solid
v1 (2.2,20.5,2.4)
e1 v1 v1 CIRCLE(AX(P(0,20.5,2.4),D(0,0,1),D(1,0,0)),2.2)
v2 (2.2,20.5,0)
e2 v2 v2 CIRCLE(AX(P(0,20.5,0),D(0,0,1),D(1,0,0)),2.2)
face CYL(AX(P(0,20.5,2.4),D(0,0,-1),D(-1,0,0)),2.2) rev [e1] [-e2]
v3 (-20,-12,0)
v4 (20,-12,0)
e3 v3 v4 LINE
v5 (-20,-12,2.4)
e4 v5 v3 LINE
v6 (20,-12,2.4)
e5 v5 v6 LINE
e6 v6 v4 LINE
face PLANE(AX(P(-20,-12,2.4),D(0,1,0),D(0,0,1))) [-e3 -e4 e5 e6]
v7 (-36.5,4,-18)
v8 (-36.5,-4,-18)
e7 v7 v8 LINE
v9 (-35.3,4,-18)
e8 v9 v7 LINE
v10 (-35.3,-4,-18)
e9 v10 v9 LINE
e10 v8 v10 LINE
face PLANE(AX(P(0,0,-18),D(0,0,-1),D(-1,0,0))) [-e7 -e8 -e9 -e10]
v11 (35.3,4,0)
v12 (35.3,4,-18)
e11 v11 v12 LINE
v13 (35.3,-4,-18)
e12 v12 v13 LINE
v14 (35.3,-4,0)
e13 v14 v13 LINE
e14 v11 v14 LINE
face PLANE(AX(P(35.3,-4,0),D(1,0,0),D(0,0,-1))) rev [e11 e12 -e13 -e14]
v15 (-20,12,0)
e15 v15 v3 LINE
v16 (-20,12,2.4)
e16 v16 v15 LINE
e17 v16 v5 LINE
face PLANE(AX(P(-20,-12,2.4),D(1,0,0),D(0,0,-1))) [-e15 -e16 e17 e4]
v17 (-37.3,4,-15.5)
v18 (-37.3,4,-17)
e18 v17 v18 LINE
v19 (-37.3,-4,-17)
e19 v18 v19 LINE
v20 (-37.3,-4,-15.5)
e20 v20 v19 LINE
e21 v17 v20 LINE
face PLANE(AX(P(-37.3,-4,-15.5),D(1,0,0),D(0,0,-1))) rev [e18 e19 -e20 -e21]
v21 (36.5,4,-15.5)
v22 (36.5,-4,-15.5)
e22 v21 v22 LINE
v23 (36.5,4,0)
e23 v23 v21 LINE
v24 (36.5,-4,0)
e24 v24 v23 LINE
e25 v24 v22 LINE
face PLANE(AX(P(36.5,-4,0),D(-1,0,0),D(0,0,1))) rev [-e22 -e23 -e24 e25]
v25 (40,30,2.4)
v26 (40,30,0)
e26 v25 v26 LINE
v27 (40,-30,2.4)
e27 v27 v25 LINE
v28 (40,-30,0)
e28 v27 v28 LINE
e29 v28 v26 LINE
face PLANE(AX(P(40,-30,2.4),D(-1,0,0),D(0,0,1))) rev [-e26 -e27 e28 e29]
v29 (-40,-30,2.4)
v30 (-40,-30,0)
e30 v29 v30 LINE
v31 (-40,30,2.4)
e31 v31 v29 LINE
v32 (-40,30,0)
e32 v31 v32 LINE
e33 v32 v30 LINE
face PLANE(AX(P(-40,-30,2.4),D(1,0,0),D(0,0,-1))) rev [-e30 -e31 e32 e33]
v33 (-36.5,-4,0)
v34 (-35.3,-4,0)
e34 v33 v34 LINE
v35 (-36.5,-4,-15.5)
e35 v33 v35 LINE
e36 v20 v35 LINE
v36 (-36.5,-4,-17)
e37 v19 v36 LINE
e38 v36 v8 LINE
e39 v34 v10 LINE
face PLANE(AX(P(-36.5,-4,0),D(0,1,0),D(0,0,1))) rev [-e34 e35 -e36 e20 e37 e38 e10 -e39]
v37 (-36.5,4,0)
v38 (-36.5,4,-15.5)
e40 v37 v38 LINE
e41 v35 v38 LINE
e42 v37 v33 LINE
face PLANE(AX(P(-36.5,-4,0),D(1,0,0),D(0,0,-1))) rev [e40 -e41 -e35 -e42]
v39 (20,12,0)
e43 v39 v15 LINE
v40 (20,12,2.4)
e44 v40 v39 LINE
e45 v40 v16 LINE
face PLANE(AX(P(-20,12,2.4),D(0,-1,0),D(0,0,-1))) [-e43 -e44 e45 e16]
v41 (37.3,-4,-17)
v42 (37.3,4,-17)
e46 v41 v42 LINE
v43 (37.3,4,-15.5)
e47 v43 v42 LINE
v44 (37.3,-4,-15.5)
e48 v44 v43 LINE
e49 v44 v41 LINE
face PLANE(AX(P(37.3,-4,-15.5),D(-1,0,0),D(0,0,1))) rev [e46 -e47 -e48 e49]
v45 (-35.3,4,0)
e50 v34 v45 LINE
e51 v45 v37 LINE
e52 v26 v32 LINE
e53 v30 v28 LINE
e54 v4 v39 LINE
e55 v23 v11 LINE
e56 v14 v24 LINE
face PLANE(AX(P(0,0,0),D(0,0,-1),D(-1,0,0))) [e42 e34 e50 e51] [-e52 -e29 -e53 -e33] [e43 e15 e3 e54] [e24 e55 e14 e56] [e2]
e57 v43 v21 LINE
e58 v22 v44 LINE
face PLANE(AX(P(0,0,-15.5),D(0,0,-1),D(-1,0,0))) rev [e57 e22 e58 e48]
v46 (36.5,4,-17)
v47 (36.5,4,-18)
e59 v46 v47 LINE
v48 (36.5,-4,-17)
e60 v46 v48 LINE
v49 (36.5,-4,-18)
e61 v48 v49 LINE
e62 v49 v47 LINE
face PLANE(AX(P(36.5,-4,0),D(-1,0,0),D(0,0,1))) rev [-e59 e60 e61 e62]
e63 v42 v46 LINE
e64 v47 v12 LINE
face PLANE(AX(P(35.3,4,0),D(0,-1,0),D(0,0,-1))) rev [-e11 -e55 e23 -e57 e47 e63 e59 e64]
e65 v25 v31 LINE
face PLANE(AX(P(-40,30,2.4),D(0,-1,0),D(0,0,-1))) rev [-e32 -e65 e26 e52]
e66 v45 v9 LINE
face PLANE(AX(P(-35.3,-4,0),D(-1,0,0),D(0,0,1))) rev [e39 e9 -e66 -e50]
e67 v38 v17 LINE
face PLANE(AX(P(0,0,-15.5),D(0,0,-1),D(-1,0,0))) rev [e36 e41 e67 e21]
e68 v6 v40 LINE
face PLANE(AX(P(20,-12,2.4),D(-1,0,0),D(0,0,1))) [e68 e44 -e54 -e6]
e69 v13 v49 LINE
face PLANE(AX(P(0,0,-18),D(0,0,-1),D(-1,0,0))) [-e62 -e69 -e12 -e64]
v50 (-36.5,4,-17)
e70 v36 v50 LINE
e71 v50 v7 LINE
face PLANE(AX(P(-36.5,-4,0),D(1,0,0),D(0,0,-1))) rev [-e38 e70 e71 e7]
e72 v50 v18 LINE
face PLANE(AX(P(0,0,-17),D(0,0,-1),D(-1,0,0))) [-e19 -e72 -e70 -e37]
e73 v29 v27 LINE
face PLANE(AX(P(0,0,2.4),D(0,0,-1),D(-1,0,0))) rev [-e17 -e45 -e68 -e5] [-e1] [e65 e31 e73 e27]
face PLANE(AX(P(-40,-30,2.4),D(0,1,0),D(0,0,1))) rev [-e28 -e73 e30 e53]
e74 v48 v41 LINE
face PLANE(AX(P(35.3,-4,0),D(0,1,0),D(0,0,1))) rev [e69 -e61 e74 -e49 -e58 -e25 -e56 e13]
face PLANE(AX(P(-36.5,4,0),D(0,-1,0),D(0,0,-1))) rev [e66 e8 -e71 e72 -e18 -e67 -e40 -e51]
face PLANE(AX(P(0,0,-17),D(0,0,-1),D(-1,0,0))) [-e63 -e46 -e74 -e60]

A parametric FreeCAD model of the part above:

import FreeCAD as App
import Part
import Sketcher
from FreeCAD import Vector
Q = App.Units.Quantity

doc = App.newDocument("Part")
body = doc.addObject("PartDesign::Body", "Body")

# Sketch on XY plane
sketch1 = body.newObject("Sketcher::SketchObject", "Sketch")
sketch1.AttachmentSupport = (doc.getObject("XY_Plane"), [""])
sketch1.MapMode = "FlatFace"
sketch1.addGeometry([
    Part.LineSegment(Vector(-40, 30, 0), Vector(-40, -30, 0)),  # 0
    Part.LineSegment(Vector(-40, -30, 0), Vector(40, -30, 0)),  # 1
    Part.LineSegment(Vector(40, -30, 0), Vector(40, 30, 0)),  # 2
    Part.LineSegment(Vector(40, 30, 0), Vector(-40, 30, 0)),  # 3
    Part.LineSegment(Vector(20, -12, 0), Vector(-20, -12, 0)),  # 4
    Part.LineSegment(Vector(-20, -12, 0), Vector(-20, 12, 0)),  # 5
    Part.LineSegment(Vector(-20, 12, 0), Vector(20, 12, 0)),  # 6
    Part.LineSegment(Vector(20, 12, 0), Vector(20, -12, 0)),  # 7
], False)
sketch1.addConstraint([
    Sketcher.Constraint("Coincident", 0, 2, 1, 1),
    Sketcher.Constraint("Coincident", 1, 2, 2, 1),
    Sketcher.Constraint("Coincident", 2, 2, 3, 1),
    Sketcher.Constraint("Coincident", 3, 2, 0, 1),
    Sketcher.Constraint("Coincident", 4, 2, 5, 1),
    Sketcher.Constraint("Coincident", 5, 2, 6, 1),
    Sketcher.Constraint("Coincident", 6, 2, 7, 1),
    Sketcher.Constraint("Coincident", 7, 2, 4, 1),
    Sketcher.Constraint("Vertical", 0),
    Sketcher.Constraint("Horizontal", 1),
    Sketcher.Constraint("Vertical", 2),
    Sketcher.Constraint("Horizontal", 3),
    Sketcher.Constraint("Horizontal", 4),
    Sketcher.Constraint("Vertical", 5),
    Sketcher.Constraint("Horizontal", 6),
    Sketcher.Constraint("Vertical", 7),
    Sketcher.Constraint("Symmetric", 0, 2, 2, 2, -1, 1),
    Sketcher.Constraint("Symmetric", 4, 2, 6, 2, -1, 1),
    Sketcher.Constraint("DistanceX", 1, 1, 1, 2, Q("80 mm")),
    Sketcher.Constraint("DistanceX", 4, 2, 4, 1, Q("40 mm")),
    Sketcher.Constraint("DistanceY", 0, 2, 0, 1, Q("60 mm")),
    Sketcher.Constraint("DistanceY", 5, 1, 5, 2, Q("24 mm")),
])
pad1 = body.newObject("PartDesign::Pad", "Pad")
pad1.Profile = sketch1
pad1.Length = 2.4

# Sketch on XY plane
sketch2 = body.newObject("Sketcher::SketchObject", "Sketch001")
sketch2.AttachmentSupport = (doc.getObject("XY_Plane"), [""])
sketch2.MapMode = "FlatFace"
sketch2.AttachmentOffset = App.Placement(Vector(0, 0, -18), App.Rotation())
sketch2.addGeometry([
    Part.LineSegment(Vector(-36.5, 4, 0), Vector(-36.5, -4, 0)),
    Part.LineSegment(Vector(-36.5, -4, 0), Vector(-35.3, -4, 0)),
    Part.LineSegment(Vector(-35.3, -4, 0), Vector(-35.3, 4, 0)),
    Part.LineSegment(Vector(-35.3, 4, 0), Vector(-36.5, 4, 0)),
], False)
sketch2.addConstraint([
    Sketcher.Constraint("Coincident", 0, 2, 1, 1),
    Sketcher.Constraint("Coincident", 1, 2, 2, 1),
    Sketcher.Constraint("Coincident", 2, 2, 3, 1),
    Sketcher.Constraint("Coincident", 3, 2, 0, 1),
    Sketcher.Constraint("Vertical", 0),
    Sketcher.Constraint("Horizontal", 1),
    Sketcher.Constraint("Vertical", 2),
    Sketcher.Constraint("Horizontal", 3),
    Sketcher.Constraint("DistanceY", 0, 2, 0, 1, Q("8 mm")),
    Sketcher.Constraint("DistanceX", 1, 1, 1, 2, Q("1.2 mm")),
    Sketcher.Constraint("DistanceY", 0, 2, -1, 1, Q("4 mm")),
    Sketcher.Constraint("DistanceX", 0, 2, -1, 1, Q("36.5 mm")),
])
pad2 = body.newObject("PartDesign::Pad", "Pad001")
pad2.Profile = sketch2
pad2.Length = 18

# Sketch on XY plane
sketch3 = body.newObject("Sketcher::SketchObject", "Sketch002")
sketch3.AttachmentSupport = (doc.getObject("XY_Plane"), [""])
sketch3.MapMode = "FlatFace"
sketch3.AttachmentOffset = App.Placement(Vector(0, 0, -18), App.Rotation())
sketch3.addGeometry([
    Part.LineSegment(Vector(35.3, 4, 0), Vector(35.3, -4, 0)),
    Part.LineSegment(Vector(35.3, -4, 0), Vector(36.5, -4, 0)),
    Part.LineSegment(Vector(36.5, -4, 0), Vector(36.5, 4, 0)),
    Part.LineSegment(Vector(36.5, 4, 0), Vector(35.3, 4, 0)),
], False)
sketch3.addConstraint([
    Sketcher.Constraint("Coincident", 0, 2, 1, 1),
    Sketcher.Constraint("Coincident", 1, 2, 2, 1),
    Sketcher.Constraint("Coincident", 2, 2, 3, 1),
    Sketcher.Constraint("Coincident", 3, 2, 0, 1),
    Sketcher.Constraint("Vertical", 0),
    Sketcher.Constraint("Horizontal", 1),
    Sketcher.Constraint("Vertical", 2),
    Sketcher.Constraint("Horizontal", 3),
    Sketcher.Constraint("DistanceY", 0, 2, 0, 1, Q("8 mm")),
    Sketcher.Constraint("DistanceX", 1, 1, 1, 2, Q("1.2 mm")),
    Sketcher.Constraint("DistanceY", 0, 2, -1, 1, Q("4 mm")),
    Sketcher.Constraint("DistanceX", -1, 1, 0, 2, Q("35.3 mm")),
])
pad3 = body.newObject("PartDesign::Pad", "Pad002")
pad3.Profile = sketch3
pad3.Length = 18

# Sketch on XY plane
sketch4 = body.newObject("Sketcher::SketchObject", "Sketch003")
sketch4.AttachmentSupport = (doc.getObject("XY_Plane"), [""])
sketch4.MapMode = "FlatFace"
sketch4.AttachmentOffset = App.Placement(Vector(0, 0, -17), App.Rotation())
sketch4.addGeometry([
    Part.LineSegment(Vector(-37.3, 4, 0), Vector(-37.3, -4, 0)),
    Part.LineSegment(Vector(-37.3, -4, 0), Vector(-36.5, -4, 0)),
    Part.LineSegment(Vector(-36.5, -4, 0), Vector(-36.5, 4, 0)),
    Part.LineSegment(Vector(-36.5, 4, 0), Vector(-37.3, 4, 0)),
], False)
sketch4.addConstraint([
    Sketcher.Constraint("Coincident", 0, 2, 1, 1),
    Sketcher.Constraint("Coincident", 1, 2, 2, 1),
    Sketcher.Constraint("Coincident", 2, 2, 3, 1),
    Sketcher.Constraint("Coincident", 3, 2, 0, 1),
    Sketcher.Constraint("Vertical", 0),
    Sketcher.Constraint("Horizontal", 1),
    Sketcher.Constraint("Vertical", 2),
    Sketcher.Constraint("Horizontal", 3),
    Sketcher.Constraint("DistanceY", 0, 2, 0, 1, Q("8 mm")),
    Sketcher.Constraint("DistanceX", 1, 1, 1, 2, Q("0.8 mm")),
    Sketcher.Constraint("DistanceY", 0, 2, -1, 1, Q("4 mm")),
    Sketcher.Constraint("DistanceX", 0, 2, -1, 1, Q("37.3 mm")),
])
pad4 = body.newObject("PartDesign::Pad", "Pad003")
pad4.Profile = sketch4
pad4.Length = 1.5

# Sketch on XY plane
sketch5 = body.newObject("Sketcher::SketchObject", "Sketch004")
sketch5.AttachmentSupport = (doc.getObject("XY_Plane"), [""])
sketch5.MapMode = "FlatFace"
sketch5.AttachmentOffset = App.Placement(Vector(0, 0, -17), App.Rotation())
sketch5.addGeometry([
    Part.LineSegment(Vector(36.5, 4, 0), Vector(36.5, -4, 0)),
    Part.LineSegment(Vector(36.5, -4, 0), Vector(37.3, -4, 0)),
    Part.LineSegment(Vector(37.3, -4, 0), Vector(37.3, 4, 0)),
    Part.LineSegment(Vector(37.3, 4, 0), Vector(36.5, 4, 0)),
], False)
sketch5.addConstraint([
    Sketcher.Constraint("Coincident", 0, 2, 1, 1),
    Sketcher.Constraint("Coincident", 1, 2, 2, 1),
    Sketcher.Constraint("Coincident", 2, 2, 3, 1),
    Sketcher.Constraint("Coincident", 3, 2, 0, 1),
    Sketcher.Constraint("Vertical", 0),
    Sketcher.Constraint("Horizontal", 1),
    Sketcher.Constraint("Vertical", 2),
    Sketcher.Constraint("Horizontal", 3),
    Sketcher.Constraint("DistanceY", 0, 2, 0, 1, Q("8 mm")),
    Sketcher.Constraint("DistanceX", 1, 1, 1, 2, Q("0.8 mm")),
    Sketcher.Constraint("DistanceY", 0, 2, -1, 1, Q("4 mm")),
    Sketcher.Constraint("DistanceX", -1, 1, 0, 2, Q("36.5 mm")),
])
pad5 = body.newObject("PartDesign::Pad", "Pad004")
pad5.Profile = sketch5
pad5.Length = 1.5

# Sketch on XY plane
sketch6 = body.newObject("Sketcher::SketchObject", "Sketch005")
sketch6.AttachmentSupport = (doc.getObject("XY_Plane"), [""])
sketch6.MapMode = "FlatFace"
sketch6.addGeometry(Part.Circle(Vector(0, 20.5, 0), Vector(0, 0, 1), 2.2), False)
sketch6.addConstraint([
    Sketcher.Constraint("PointOnObject", 0, 3, -2),
    Sketcher.Constraint("Diameter", 0, Q("4.4 mm")),
    Sketcher.Constraint("DistanceY", -1, 1, 0, 3, Q("20.5 mm")),
])
pocket1 = body.newObject("PartDesign::Pocket", "Pocket")
pocket1.Profile = sketch6
pocket1.Type = "ThroughAll"
pocket1.Reversed = True

doc.recompute()
